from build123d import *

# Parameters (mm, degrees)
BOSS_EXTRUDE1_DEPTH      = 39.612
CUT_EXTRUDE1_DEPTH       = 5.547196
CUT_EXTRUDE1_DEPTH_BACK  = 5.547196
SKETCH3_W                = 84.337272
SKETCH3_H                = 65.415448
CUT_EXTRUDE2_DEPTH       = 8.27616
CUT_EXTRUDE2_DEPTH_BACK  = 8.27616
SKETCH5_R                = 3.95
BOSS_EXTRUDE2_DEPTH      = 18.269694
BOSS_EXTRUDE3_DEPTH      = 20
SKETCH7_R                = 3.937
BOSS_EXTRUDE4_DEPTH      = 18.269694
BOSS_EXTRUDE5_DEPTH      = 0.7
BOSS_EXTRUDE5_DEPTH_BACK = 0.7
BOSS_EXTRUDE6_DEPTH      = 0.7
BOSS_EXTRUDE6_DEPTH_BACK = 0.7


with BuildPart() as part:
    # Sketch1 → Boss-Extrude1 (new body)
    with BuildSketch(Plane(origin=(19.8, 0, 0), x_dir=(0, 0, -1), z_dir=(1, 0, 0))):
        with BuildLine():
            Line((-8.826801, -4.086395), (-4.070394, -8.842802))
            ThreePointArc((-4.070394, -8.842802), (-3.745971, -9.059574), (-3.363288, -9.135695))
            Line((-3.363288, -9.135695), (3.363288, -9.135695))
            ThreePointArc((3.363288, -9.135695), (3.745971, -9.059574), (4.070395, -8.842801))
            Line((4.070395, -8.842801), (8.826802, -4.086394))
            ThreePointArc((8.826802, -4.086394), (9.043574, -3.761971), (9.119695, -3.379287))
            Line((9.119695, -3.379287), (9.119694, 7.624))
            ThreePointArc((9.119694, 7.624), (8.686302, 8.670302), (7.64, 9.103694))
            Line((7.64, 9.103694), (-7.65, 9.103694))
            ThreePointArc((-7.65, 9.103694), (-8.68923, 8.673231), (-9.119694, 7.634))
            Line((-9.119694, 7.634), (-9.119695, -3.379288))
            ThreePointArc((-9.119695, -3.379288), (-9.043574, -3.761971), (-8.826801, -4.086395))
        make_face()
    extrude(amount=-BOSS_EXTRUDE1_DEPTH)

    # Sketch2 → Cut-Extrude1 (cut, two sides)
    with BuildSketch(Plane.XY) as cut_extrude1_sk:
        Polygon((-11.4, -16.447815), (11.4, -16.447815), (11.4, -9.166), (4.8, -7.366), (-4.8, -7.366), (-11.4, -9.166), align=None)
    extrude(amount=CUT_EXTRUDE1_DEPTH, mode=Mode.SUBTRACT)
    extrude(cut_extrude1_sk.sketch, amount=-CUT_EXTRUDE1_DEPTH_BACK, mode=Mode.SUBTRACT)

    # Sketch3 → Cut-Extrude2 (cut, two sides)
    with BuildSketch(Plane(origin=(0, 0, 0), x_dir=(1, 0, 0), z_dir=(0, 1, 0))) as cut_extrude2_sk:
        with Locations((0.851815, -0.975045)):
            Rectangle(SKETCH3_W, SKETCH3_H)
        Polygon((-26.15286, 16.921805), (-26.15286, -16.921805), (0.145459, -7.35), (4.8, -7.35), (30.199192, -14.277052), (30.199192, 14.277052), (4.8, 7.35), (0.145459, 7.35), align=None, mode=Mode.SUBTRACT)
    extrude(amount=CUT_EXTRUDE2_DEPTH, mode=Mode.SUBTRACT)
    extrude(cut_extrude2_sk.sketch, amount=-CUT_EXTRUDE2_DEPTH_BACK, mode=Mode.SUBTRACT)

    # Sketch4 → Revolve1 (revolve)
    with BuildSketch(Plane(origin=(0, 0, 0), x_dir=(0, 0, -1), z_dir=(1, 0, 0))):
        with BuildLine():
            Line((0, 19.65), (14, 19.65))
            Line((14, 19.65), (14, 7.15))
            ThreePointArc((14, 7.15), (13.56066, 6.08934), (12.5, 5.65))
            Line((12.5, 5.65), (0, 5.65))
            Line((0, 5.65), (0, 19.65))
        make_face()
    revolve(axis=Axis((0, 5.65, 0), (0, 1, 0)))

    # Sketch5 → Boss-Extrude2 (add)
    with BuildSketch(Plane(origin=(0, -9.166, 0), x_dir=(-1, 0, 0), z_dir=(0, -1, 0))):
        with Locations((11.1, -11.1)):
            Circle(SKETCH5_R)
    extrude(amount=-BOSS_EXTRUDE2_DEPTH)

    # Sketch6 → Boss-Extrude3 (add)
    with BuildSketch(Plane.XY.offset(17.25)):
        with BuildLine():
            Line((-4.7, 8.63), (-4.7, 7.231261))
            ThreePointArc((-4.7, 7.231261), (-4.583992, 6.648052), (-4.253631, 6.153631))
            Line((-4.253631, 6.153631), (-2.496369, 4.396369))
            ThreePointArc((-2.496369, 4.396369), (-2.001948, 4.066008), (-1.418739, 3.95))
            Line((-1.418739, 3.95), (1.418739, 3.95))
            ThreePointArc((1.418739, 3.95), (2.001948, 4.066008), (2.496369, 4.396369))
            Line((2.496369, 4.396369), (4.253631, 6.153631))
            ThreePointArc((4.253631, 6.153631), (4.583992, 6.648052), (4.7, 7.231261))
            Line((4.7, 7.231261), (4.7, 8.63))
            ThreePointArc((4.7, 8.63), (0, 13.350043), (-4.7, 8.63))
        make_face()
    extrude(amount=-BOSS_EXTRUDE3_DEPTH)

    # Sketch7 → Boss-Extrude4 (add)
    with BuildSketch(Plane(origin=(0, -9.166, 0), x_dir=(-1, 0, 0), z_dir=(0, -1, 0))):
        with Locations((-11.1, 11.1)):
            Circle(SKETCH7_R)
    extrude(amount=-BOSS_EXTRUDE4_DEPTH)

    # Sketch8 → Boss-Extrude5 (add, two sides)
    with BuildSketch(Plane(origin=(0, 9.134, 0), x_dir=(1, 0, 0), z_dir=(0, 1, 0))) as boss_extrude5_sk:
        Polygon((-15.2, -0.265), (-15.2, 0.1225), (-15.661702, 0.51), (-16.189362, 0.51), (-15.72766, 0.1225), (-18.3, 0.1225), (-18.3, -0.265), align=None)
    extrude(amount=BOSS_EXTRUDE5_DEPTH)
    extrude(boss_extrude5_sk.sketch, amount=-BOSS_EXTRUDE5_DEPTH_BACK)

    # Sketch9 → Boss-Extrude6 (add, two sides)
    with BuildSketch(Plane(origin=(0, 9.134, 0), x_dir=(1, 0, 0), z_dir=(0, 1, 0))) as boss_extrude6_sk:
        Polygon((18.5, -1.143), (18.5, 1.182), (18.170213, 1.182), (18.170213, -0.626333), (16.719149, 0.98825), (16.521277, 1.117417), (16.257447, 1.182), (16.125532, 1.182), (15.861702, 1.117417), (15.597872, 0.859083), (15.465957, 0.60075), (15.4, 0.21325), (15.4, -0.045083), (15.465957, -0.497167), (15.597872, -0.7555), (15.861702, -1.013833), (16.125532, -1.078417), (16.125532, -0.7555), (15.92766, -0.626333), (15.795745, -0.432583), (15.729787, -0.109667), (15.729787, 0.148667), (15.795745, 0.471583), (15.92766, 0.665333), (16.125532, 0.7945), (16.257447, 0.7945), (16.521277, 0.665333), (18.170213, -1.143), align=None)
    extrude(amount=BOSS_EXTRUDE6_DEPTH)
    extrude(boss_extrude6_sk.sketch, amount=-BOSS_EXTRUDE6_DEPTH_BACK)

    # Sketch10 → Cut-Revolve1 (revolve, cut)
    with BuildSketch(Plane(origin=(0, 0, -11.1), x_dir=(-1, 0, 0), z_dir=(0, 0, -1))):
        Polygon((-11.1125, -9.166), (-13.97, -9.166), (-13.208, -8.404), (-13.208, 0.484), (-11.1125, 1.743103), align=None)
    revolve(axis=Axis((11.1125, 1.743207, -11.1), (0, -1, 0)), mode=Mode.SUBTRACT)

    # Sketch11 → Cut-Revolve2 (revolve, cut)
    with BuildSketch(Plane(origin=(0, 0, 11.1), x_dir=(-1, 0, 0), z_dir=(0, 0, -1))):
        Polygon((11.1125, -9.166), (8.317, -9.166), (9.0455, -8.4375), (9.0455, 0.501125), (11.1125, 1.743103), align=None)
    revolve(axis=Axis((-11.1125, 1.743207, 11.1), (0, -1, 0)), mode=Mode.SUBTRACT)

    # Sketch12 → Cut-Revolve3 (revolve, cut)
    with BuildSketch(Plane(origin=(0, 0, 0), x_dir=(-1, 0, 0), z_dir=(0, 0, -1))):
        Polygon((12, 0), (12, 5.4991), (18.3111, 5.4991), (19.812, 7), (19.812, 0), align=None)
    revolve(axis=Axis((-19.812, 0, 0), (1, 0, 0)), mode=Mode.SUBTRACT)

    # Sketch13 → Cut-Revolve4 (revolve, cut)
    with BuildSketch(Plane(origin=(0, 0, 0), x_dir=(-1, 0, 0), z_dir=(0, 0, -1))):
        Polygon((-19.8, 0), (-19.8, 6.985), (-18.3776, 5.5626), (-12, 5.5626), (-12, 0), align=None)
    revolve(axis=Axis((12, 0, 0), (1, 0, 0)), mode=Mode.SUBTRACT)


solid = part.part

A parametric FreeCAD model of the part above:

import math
import FreeCAD as App
import Part
import Sketcher
from FreeCAD import Vector
Q = App.Units.Quantity


def add_polygon(sketch, points):
    """Adds a closed chain of lines whose ends are joined by coincident constraints."""
    first, n = sketch.GeometryCount, len(points)
    for a, b in zip(points, points[1:] + points[:1]):
        sketch.addGeometry(Part.LineSegment(App.Vector(*a, 0), App.Vector(*b, 0)), False)
    for i in range(n):
        sketch.addConstraint(Sketcher.Constraint("Coincident", first + i, 2, first + (i + 1) % n, 1))

doc = App.newDocument("Part")
params = doc.addObject("Spreadsheet::Sheet", "Params")
for row, (alias, value) in enumerate([
    ("sketch1_height", "15.29 mm"),
    ("pad1_length", "39.612 mm"),
    ("sketch2_width", "22.8 mm"),
    ("sketch2_width2", "9.6 mm"),
    ("pocket2_length", "8.27616 mm"),
    ("pocket2_length2", "8.27616 mm"),
    ("sketch4_radius", "1.500001 mm"),
    ("sketch4_width", "14 mm"),
    ("revolution_angle", "360 deg"),
    ("sketch5_diameter", "7.9 mm"),
    ("pad2_length", "18.269694 mm"),
    ("pad3_length", "20 mm"),
    ("pad4_length", "18.269694 mm"),
    ("sketch8_width", "3.1 mm"),
    ("pad5_length", "0.7 mm"),
    ("pad5_length2", "0.7 mm"),
    ("pad6_length", "0.7 mm"),
    ("pad6_length2", "0.7 mm"),
    ("groove_angle", "360 deg"),
    ("groove2_angle", "360 deg"),
    ("sketch12_height", "7 mm"),
    ("groove3_angle", "360 deg"),
    ("sketch13_width", "7.8 mm"),
    ("groove4_angle", "360 deg"),
], start=1):
    params.set(f"A{row}", alias)
    params.set(f"B{row}", "=" + value)
    params.setAlias(f"B{row}", alias)

body = doc.addObject("PartDesign::Body", "Body")

# Sketch on YZ plane
sketch1 = body.newObject("Sketcher::SketchObject", "Sketch")
sketch1.AttachmentSupport = (doc.getObject("YZ_Plane"), [""])
sketch1.MapMode = "FlatFace"
sketch1.AttachmentOffset = App.Placement(Vector(0, 0, 19.8), App.Rotation())
sketch1.addGeometry(Part.LineSegment(Vector(-4.1, 8.8, 0), Vector(-8.8, 4.1, 0)), False)
sketch1.addGeometry(Part.ArcOfCircle(Part.Circle(Vector(-8.1, 3.4, 0), Vector(0, 0, 1), 1), math.radians(135), math.radians(180)), False)
sketch1.addGeometry(Part.LineSegment(Vector(-9.1, 3.4, 0), Vector(-9.1, -3.4, 0)), False)
sketch1.addGeometry(Part.ArcOfCircle(Part.Circle(Vector(-8.1, -3.4, 0), Vector(0, 0, 1), 1), math.radians(-180), math.radians(-135)), False)
sketch1.addGeometry(Part.LineSegment(Vector(-8.8, -4.1, 0), Vector(-4.1, -8.8, 0)), False)
sketch1.addGeometry(Part.ArcOfCircle(Part.Circle(Vector(-3.4, -8.1, 0), Vector(0, 0, 1), 1), math.radians(-135), math.radians(-90)), False)
sketch1.addGeometry(Part.LineSegment(Vector(-3.4, -9.1, 0), Vector(7.6, -9.1, 0)), False)
sketch1.addGeometry(Part.ArcOfCircle(Part.Circle(Vector(7.6, -7.6, 0), Vector(0, 0, 1), 1.5), math.radians(-90), math.radians(0)), False)
sketch1.addGeometry(Part.LineSegment(Vector(9.1, -7.6, 0), Vector(9.1, 7.7, 0)), False)
sketch1.addGeometry(Part.ArcOfCircle(Part.Circle(Vector(7.6, 7.6, 0), Vector(0, 0, 1), 1.5), math.radians(0), math.radians(90)), False)
sketch1.addGeometry(Part.LineSegment(Vector(7.6, 9.1, 0), Vector(-3.4, 9.1, 0)), False)
sketch1.addGeometry(Part.ArcOfCircle(Part.Circle(Vector(-3.4, 8.1, 0), Vector(0, 0, 1), 1), math.radians(90), math.radians(135)), False)
sketch1.addConstraint(Sketcher.Constraint("Coincident", 0, 2, 1, 1))
sketch1.addConstraint(Sketcher.Constraint("Coincident", 1, 2, 2, 1))
sketch1.addConstraint(Sketcher.Constraint("Coincident", 2, 2, 3, 1))
sketch1.addConstraint(Sketcher.Constraint("Tangent", 3, 2, 4, 1))
sketch1.addConstraint(Sketcher.Constraint("Coincident", 4, 2, 5, 1))
sketch1.addConstraint(Sketcher.Constraint("Tangent", 5, 2, 6, 1))
sketch1.addConstraint(Sketcher.Constraint("Tangent", 6, 2, 7, 1))
sketch1.addConstraint(Sketcher.Constraint("Tangent", 7, 2, 8, 1))
sketch1.addConstraint(Sketcher.Constraint("Tangent", 8, 2, 9, 1))
sketch1.addConstraint(Sketcher.Constraint("Tangent", 9, 2, 10, 1))
sketch1.addConstraint(Sketcher.Constraint("Coincident", 10, 2, 11, 1))
sketch1.addConstraint(Sketcher.Constraint("Tangent", 11, 2, 0, 1))
sketch1.addConstraint(Sketcher.Constraint("Vertical", 2))
sketch1.addConstraint(Sketcher.Constraint("Horizontal", 6))
sketch1.addConstraint(Sketcher.Constraint("Vertical", 8))
sketch1.addConstraint(Sketcher.Constraint("Horizontal", 10))
sketch1.addConstraint(Sketcher.Constraint("Equal", 1, 3))
sketch1.addConstraint(Sketcher.Constraint("Equal", 3, 5))
sketch1.addConstraint(Sketcher.Constraint("Equal", 5, 11))
sketch1.addConstraint(Sketcher.Constraint("Symmetric", 5, 3, 11, 3, -1))
sketch1.addConstraint(Sketcher.Constraint("Symmetric", 0, 2, 3, 2, -1))
sketch1.addConstraint(Sketcher.Constraint("Perpendicular", 0, 4))
sketch1.addConstraint(Sketcher.Constraint("Vertical", 5, 2, 10, 2))
sketch1.addConstraint(Sketcher.Constraint("Vertical", 4, 2, 11, 2))
sketch1.addConstraint(Sketcher.Constraint("DistanceY", 8, 1, 8, 2, 15.29))
sketch1.addConstraint(Sketcher.Constraint("DistanceY", 7, 3, -1, 1, 7.640001))
sketch1.addConstraint(Sketcher.Constraint("DistanceX", -1, 1, 7, 3, 7.624001))
sketch1.addConstraint(Sketcher.Constraint("Radius", 1, 1.000005))
sketch1.addConstraint(Sketcher.Constraint("Radius", 7, 1.479693))
sketch1.addConstraint(Sketcher.Constraint("DistanceX", 3, 2, -1, 1, 8.842801))
sketch1.addConstraint(Sketcher.Constraint("DistanceY", 1, 2, 11, 3, 4.756402))
sketch1.addConstraint(Sketcher.Constraint("DistanceY", 5, 3, 2, 2, 4.756402))
sketch1.addConstraint(Sketcher.Constraint("DistanceX", 2, 2, 4, 2, 5.049301))
sketch1.setExpression("Constraints[24]", "Params.sketch1_height")
pad1 = body.newObject("PartDesign::Pad", "Pad")
pad1.Profile = sketch1
pad1.setExpression("Length", "Params.pad1_length")
pad1.Reversed = True

# Sketch on XY plane
sketch2 = body.newObject("Sketcher::SketchObject", "Sketch001")
sketch2.AttachmentSupport = (doc.getObject("XY_Plane"), [""])
sketch2.MapMode = "FlatFace"
add_polygon(sketch2, [(-11, -16), (11, -16), (11, -9), (5, -7), (-5, -7), (-11, -9)])  # lines 0-5
sketch2.addConstraint(Sketcher.Constraint("Horizontal", 0))
sketch2.addConstraint(Sketcher.Constraint("Vertical", 1))
sketch2.addConstraint(Sketcher.Constraint("Horizontal", 3))
sketch2.addConstraint(Sketcher.Constraint("Vertical", 5))
sketch2.addConstraint(Sketcher.Constraint("Symmetric", 1, 2, 4, 2, -2))
sketch2.addConstraint(Sketcher.Constraint("Equal", 2, 4))
sketch2.addConstraint(Sketcher.Constraint("DistanceX", 0, 1, 0, 2, 22.8))
sketch2.addConstraint(Sketcher.Constraint("DistanceX", 3, 2, 3, 1, 9.6))
sketch2.addConstraint(Sketcher.Constraint("DistanceY", 1, 2, 2, 2, 1.8))
sketch2.addConstraint(Sketcher.Constraint("DistanceY", 1, 2, -1, 1, 9.166))
sketch2.addConstraint(Sketcher.Constraint("DistanceY", 1, 1, 1, 2, 7.281815))
sketch2.setExpression("Constraints[12]", "Params.sketch2_width")
sketch2.setExpression("Constraints[13]", "Params.sketch2_width2")
pocket1 = body.newObject("PartDesign::Pocket", "Pocket")
pocket1.Profile = sketch2
pocket1.Type = "ThroughAll"
pocket1.Midplane = True

# Sketch on XZ plane
sketch3 = body.newObject("Sketcher::SketchObject", "Sketch002")
sketch3.AttachmentSupport = (doc.getObject("XZ_Plane"), [""])
sketch3.MapMode = "FlatFace"
add_polygon(sketch3, [(-41.3, -31.7), (-41.3, 33.7), (43, 33.7), (43, -31.7)])  # lines 0-3
add_polygon(sketch3, [(-26.2, 16.9), (-26.2, -16.9), (0.1, -7.3), (4.8, -7.3), (30.2, -14.3), (30.2, 14.3), (4.8, 7.3), (0.1, 7.3)])  # lines 4-11
sketch3.addConstraint(Sketcher.Constraint("Vertical", 0))
sketch3.addConstraint(Sketcher.Constraint("Horizontal", 1))
sketch3.addConstraint(Sketcher.Constraint("Vertical", 2))
sketch3.addConstraint(Sketcher.Constraint("Horizontal", 3))
sketch3.addConstraint(Sketcher.Constraint("Vertical", 4))
sketch3.addConstraint(Sketcher.Constraint("Horizontal", 6))
sketch3.addConstraint(Sketcher.Constraint("Vertical", 8))
sketch3.addConstraint(Sketcher.Constraint("Horizontal", 10))
sketch3.addConstraint(Sketcher.Constraint("Symmetric", 6, 2, 9, 2, -1))
sketch3.addConstraint(Sketcher.Constraint("Vertical", 5, 2, 10, 2))
sketch3.addConstraint(Sketcher.Constraint("Equal", 7, 9))
sketch3.addConstraint(Sketcher.Constraint("Equal", 5, 11))
sketch3.addConstraint(Sketcher.Constraint("Angle", 5, Q("19.999999 deg")))
sketch3.addConstraint(Sketcher.Constraint("DistanceX", -1, 1, 6, 2, 4.8))
sketch3.addConstraint(Sketcher.Constraint("DistanceY", 6, 2, 9, 2, 14.7))
sketch3.addConstraint(Sketcher.Constraint("DistanceX", 1, 1, 1, 2, 84.337272))
sketch3.addConstraint(Sketcher.Constraint("DistanceX", 6, 1, 6, 2, 4.654541))
sketch3.addConstraint(Sketcher.Constraint("DistanceY", 4, 2, 4, 1, 33.84361))
sketch3.addConstraint(Sketcher.Constraint("Distance", 7, 26.326849))
sketch3.addConstraint(Sketcher.Constraint("DistanceY", 0, 1, 0, 2, 65.415448))
sketch3.addConstraint(Sketcher.Constraint("DistanceY", 8, 1, 8, 2, 28.554104))
sketch3.addConstraint(Sketcher.Constraint("DistanceX", 0, 2, -1, 1, 41.316821))
sketch3.addConstraint(Sketcher.Constraint("DistanceY", -1, 1, 0, 2, 33.682769))
pocket2 = body.newObject("PartDesign::Pocket", "Pocket001")
pocket2.Profile = sketch3
pocket2.Type = "TwoLengths"
pocket2.setExpression("Length", "Params.pocket2_length")
pocket2.setExpression("Length2", "Params.pocket2_length2")

# Sketch on YZ plane
sketch4 = body.newObject("Sketcher::SketchObject", "Sketch003")
sketch4.AttachmentSupport = (doc.getObject("YZ_Plane"), [""])
sketch4.MapMode = "FlatFace"
sketch4.addGeometry(Part.LineSegment(Vector(19.6, -14, 0), Vector(19.6, 0, 0)), False)
sketch4.addGeometry(Part.LineSegment(Vector(19.6, 0, 0), Vector(5.7, 0, 0)), False)
sketch4.addGeometry(Part.LineSegment(Vector(5.7, 0, 0), Vector(5.7, -12.5, 0)), False)
sketch4.addGeometry(Part.ArcOfCircle(Part.Circle(Vector(7.2, -12.5, 0), Vector(0, 0, 1), 1.5), math.radians(-180), math.radians(-90)), False)
sketch4.addGeometry(Part.LineSegment(Vector(7.2, -14, 0), Vector(19.6, -14, 0)), False)
sketch4.addConstraint(Sketcher.Constraint("Coincident", 0, 2, 1, 1))
sketch4.addConstraint(Sketcher.Constraint("Coincident", 1, 2, 2, 1))
sketch4.addConstraint(Sketcher.Constraint("Tangent", 2, 2, 3, 1))
sketch4.addConstraint(Sketcher.Constraint("Tangent", 3, 2, 4, 1))
sketch4.addConstraint(Sketcher.Constraint("Coincident", 4, 2, 0, 1))
sketch4.addConstraint(Sketcher.Constraint("Vertical", 0))
sketch4.addConstraint(Sketcher.Constraint("Horizontal", 1))
sketch4.addConstraint(Sketcher.Constraint("Vertical", 2))
sketch4.addConstraint(Sketcher.Constraint("Horizontal", 4))
sketch4.addConstraint(Sketcher.Constraint("PointOnObject", 0, 2, -1))
sketch4.addConstraint(Sketcher.Constraint("Equal", 1, 0))
sketch4.addConstraint(Sketcher.Constraint("Radius", 3, 1.500001))
sketch4.addConstraint(Sketcher.Constraint("DistanceX", 1, 2, 1, 1, 14.0))
sketch4.addConstraint(Sketcher.Constraint("DistanceX", -1, 1, 3, 3, 7.150001))
sketch4.setExpression("Constraints[11]", "Params.sketch4_radius")
sketch4.setExpression("Constraints[12]", "Params.sketch4_width")
revolution = body.newObject("PartDesign::Revolution", "Revolution")
revolution.Profile = sketch4
revolution.ReferenceAxis = (sketch4, ["H_Axis"])
revolution.setExpression("Angle", "Params.revolution_angle")

# Sketch on XZ plane
sketch5 = body.newObject("Sketcher::SketchObject", "Sketch004")
sketch5.AttachmentSupport = (doc.getObject("XZ_Plane"), [""])
sketch5.MapMode = "FlatFace"
sketch5.AttachmentOffset = App.Placement(Vector(0, 0, 9.166), App.Rotation())
sketch5.addGeometry(Part.Circle(Vector(-11.1, 11.1, 0), Vector(0, 0, 1), 4), False)
sketch5.addConstraint(Sketcher.Constraint("Diameter", 0, 7.9))
sketch5.addConstraint(Sketcher.Constraint("DistanceX", 0, 3, -1, 1, 11.1))
sketch5.addConstraint(Sketcher.Constraint("DistanceY", -1, 1, 0, 3, 11.1))
sketch5.setExpression("Constraints[0]", "Params.sketch5_diameter")
pad2 = body.newObject("PartDesign::Pad", "Pad001")
pad2.Profile = sketch5
pad2.setExpression("Length", "Params.pad2_length")
pad2.Reversed = True

# Sketch on XY plane
sketch6 = body.newObject("Sketcher::SketchObject", "Sketch005")
sketch6.AttachmentSupport = (doc.getObject("XY_Plane"), [""])
sketch6.MapMode = "FlatFace"
sketch6.AttachmentOffset = App.Placement(Vector(0, 0, 17.25), App.Rotation())
sketch6.addGeometry(Part.LineSegment(Vector(-4.7, 8.63, 0), Vector(-4.7, 7.231261, 0)), False)
sketch6.addGeometry(Part.ArcOfCircle(Part.Circle(Vector(-3.175995, 7.231264, 0), Vector(0, 0, 1), 1.524005), math.radians(-179.999905), math.radians(-135.000091)), False)
sketch6.addGeometry(Part.LineSegment(Vector(-4.253631, 6.153631, 0), Vector(-2.496369, 4.396369, 0)), False)
sketch6.addGeometry(Part.ArcOfCircle(Part.Circle(Vector(-1.418736, 5.474005, 0), Vector(0, 0, 1), 1.524005), math.radians(-134.999909), math.radians(-90.000095)), False)
sketch6.addGeometry(Part.LineSegment(Vector(-1.418739, 3.95, 0), Vector(1.418739, 3.95, 0)), False)
sketch6.addGeometry(Part.ArcOfCircle(Part.Circle(Vector(1.418736, 5.474005, 0), Vector(0, 0, 1), 1.524005), math.radians(-89.999905), math.radians(-45.000091)), False)
sketch6.addGeometry(Part.LineSegment(Vector(2.496369, 4.396369, 0), Vector(4.253631, 6.153631, 0)), False)
sketch6.addGeometry(Part.ArcOfCircle(Part.Circle(Vector(3.175995, 7.231264, 0), Vector(0, 0, 1), 1.524005), math.radians(-44.999909), math.radians(-0.000095)), False)
sketch6.addGeometry(Part.LineSegment(Vector(4.7, 7.231261, 0), Vector(4.7, 8.63, 0)), False)
sketch6.addGeometry(Part.ArcOfCircle(Part.Circle(Vector(0, 8.65, 0), Vector(0, 0, 1), 4.700043), math.radians(-0.243816), math.radians(180.243816)), False)
sketch6.addConstraint(Sketcher.Constraint("Tangent", 0, 2, 1, 1))
sketch6.addConstraint(Sketcher.Constraint("Tangent", 1, 2, 2, 1))
sketch6.addConstraint(Sketcher.Constraint("Tangent", 2, 2, 3, 1))
sketch6.addConstraint(Sketcher.Constraint("Tangent", 3, 2, 4, 1))
sketch6.addConstraint(Sketcher.Constraint("Tangent", 4, 2, 5, 1))
sketch6.addConstraint(Sketcher.Constraint("Tangent", 5, 2, 6, 1))
sketch6.addConstraint(Sketcher.Constraint("Tangent", 6, 2, 7, 1))
sketch6.addConstraint(Sketcher.Constraint("Tangent", 7, 2, 8, 1))
sketch6.addConstraint(Sketcher.Constraint("Coincident", 8, 2, 9, 1))
sketch6.addConstraint(Sketcher.Constraint("Coincident", 9, 2, 0, 1))
sketch6.addConstraint(Sketcher.Constraint("Vertical", 0))
sketch6.addConstraint(Sketcher.Constraint("Horizontal", 4))
sketch6.addConstraint(Sketcher.Constraint("Vertical", 8))
sketch6.addConstraint(Sketcher.Constraint("Equal", 1, 3))
sketch6.addConstraint(Sketcher.Constraint("Equal", 3, 5))
sketch6.addConstraint(Sketcher.Constraint("Equal", 5, 7))
sketch6.addConstraint(Sketcher.Constraint("Symmetric", 1, 3, 7, 3, -2))
sketch6.addConstraint(Sketcher.Constraint("PointOnObject", 9, 3, -2))
sketch6.addConstraint(Sketcher.Constraint("Perpendicular", 2, 6))
sketch6.addConstraint(Sketcher.Constraint("Horizontal", 2, 2, 5, 2))
sketch6.addConstraint(Sketcher.Constraint("DistanceX", 0, 2, -1, 1, 4.7))
sketch6.addConstraint(Sketcher.Constraint("DistanceY", -1, 1, 9, 3, 8.65))
sketch6.addConstraint(Sketcher.Constraint("DistanceY", -1, 1, 3, 2, 3.95))
sketch6.addConstraint(Sketcher.Constraint("DistanceY", -1, 1, 8, 2, 8.63))
sketch6.addConstraint(Sketcher.Constraint("Radius", 1, 1.524005))
sketch6.addConstraint(Sketcher.Constraint("DistanceX", 4, 1, 4, 2, 2.837478))
pad3 = body.newObject("PartDesign::Pad", "Pad002")
pad3.Profile = sketch6
pad3.setExpression("Length", "Params.pad3_length")
pad3.Reversed = True

# Sketch on XZ plane
sketch7 = body.newObject("Sketcher::SketchObject", "Sketch006")
sketch7.AttachmentSupport = (doc.getObject("XZ_Plane"), [""])
sketch7.MapMode = "FlatFace"
sketch7.AttachmentOffset = App.Placement(Vector(0, 0, 9.166), App.Rotation())
sketch7.addGeometry(Part.Circle(Vector(11.1, -11.1, 0), Vector(0, 0, 1), 3.9), False)
sketch7.addConstraint(Sketcher.Constraint("Diameter", 0, 7.874))
sketch7.addConstraint(Sketcher.Constraint("DistanceX", -1, 1, 0, 3, 11.1))
sketch7.addConstraint(Sketcher.Constraint("DistanceY", 0, 3, -1, 1, 11.1))
pad4 = body.newObject("PartDesign::Pad", "Pad003")
pad4.Profile = sketch7
pad4.setExpression("Length", "Params.pad4_length")
pad4.Reversed = True

# Sketch on XZ plane
sketch8 = body.newObject("Sketcher::SketchObject", "Sketch007")
sketch8.AttachmentSupport = (doc.getObject("XZ_Plane"), [""])
sketch8.MapMode = "FlatFace"
sketch8.AttachmentOffset = App.Placement(Vector(0, 0, -9.134), App.Rotation())
add_polygon(sketch8, [(-15.2, 0.27), (-15.2, -0.12), (-15.66, -0.51), (-16.19, -0.51), (-15.73, -0.12), (-18.3, -0.12), (-18.3, 0.27)])  # lines 0-6
sketch8.addConstraint(Sketcher.Constraint("Vertical", 0))
sketch8.addConstraint(Sketcher.Constraint("Horizontal", 2))
sketch8.addConstraint(Sketcher.Constraint("Horizontal", 4))
sketch8.addConstraint(Sketcher.Constraint("Vertical", 5))
sketch8.addConstraint(Sketcher.Constraint("Horizontal", 6))
sketch8.addConstraint(Sketcher.Constraint("Parallel", 1, 3))
sketch8.addConstraint(Sketcher.Constraint("Horizontal", 0, 2, 3, 2))
sketch8.addConstraint(Sketcher.Constraint("DistanceX", 6, 1, 6, 2, 3.1))
sketch8.addConstraint(Sketcher.Constraint("DistanceX", 0, 2, -1, 1, 15.2))
sketch8.addConstraint(Sketcher.Constraint("DistanceY", 1, 2, -1, 1, 0.51))
sketch8.addConstraint(Sketcher.Constraint("DistanceY", 0, 2, 0, 1, 0.3875))
sketch8.addConstraint(Sketcher.Constraint("DistanceY", -1, 1, 5, 2, 0.265))
sketch8.addConstraint(Sketcher.Constraint("DistanceX", 2, 2, 2, 1, 0.52766))
sketch8.addConstraint(Sketcher.Constraint("DistanceX", 2, 2, 3, 2, 0.461702))
sketch8.setExpression("Constraints[14]", "Params.sketch8_width")
pad5 = body.newObject("PartDesign::Pad", "Pad004")
pad5.Profile = sketch8
pad5.Type = "TwoLengths"
pad5.setExpression("Length", "Params.pad5_length")
pad5.setExpression("Length2", "Params.pad5_length2")
pad5.Reversed = True

# Sketch on XZ plane
sketch9 = body.newObject("Sketcher::SketchObject", "Sketch008")
sketch9.AttachmentSupport = (doc.getObject("XZ_Plane"), [""])
sketch9.MapMode = "FlatFace"
sketch9.AttachmentOffset = App.Placement(Vector(0, 0, -9.134), App.Rotation())
add_polygon(sketch9, [(18.5, 1.14), (18.5, -1.18), (18.17, -1.18), (18.17, 0.63), (16.72, -0.99), (16.52, -1.12), (16.26, -1.18), (16.13, -1.18), (15.86, -1.12), (15.6, -0.86), (15.47, -0.6), (15.4, -0.21), (15.4, 0.05), (15.47, 0.5), (15.6, 0.76), (15.86, 1.01), (16.13, 1.08), (16.13, 0.76), (15.93, 0.63), (15.8, 0.43), (15.73, 0.11), (15.73, -0.15), (15.8, -0.47), (15.93, -0.67), (16.13, -0.79), (16.26, -0.79), (16.52, -0.67), (18.17, 1.14)])  # lines 0-27
sketch9.addConstraint(Sketcher.Constraint("Vertical", 0))
sketch9.addConstraint(Sketcher.Constraint("Horizontal", 1))
sketch9.addConstraint(Sketcher.Constraint("Vertical", 2))
sketch9.addConstraint(Sketcher.Constraint("Horizontal", 6))
sketch9.addConstraint(Sketcher.Constraint("Vertical", 11))
sketch9.addConstraint(Sketcher.Constraint("Vertical", 16))
sketch9.addConstraint(Sketcher.Constraint("Vertical", 20))
sketch9.addConstraint(Sketcher.Constraint("Horizontal", 24))
sketch9.addConstraint(Sketcher.Constraint("Horizontal", 27))
sketch9.addConstraint(Sketcher.Constraint("Parallel", 4, 17))
sketch9.addConstraint(Sketcher.Constraint("Horizontal", 1, 2, 5, 2))
sketch9.addConstraint(Sketcher.Constraint("Horizontal", 4, 2, 7, 2))
sketch9.addConstraint(Sketcher.Constraint("Horizontal", 13, 2, 16, 2))
sketch9.addConstraint(Sketcher.Constraint("Horizontal", 2, 2, 17, 2))
sketch9.addConstraint(Sketcher.Constraint("Horizontal", 22, 2, 25, 2))
sketch9.addConstraint(Sketcher.Constraint("Vertical", 9, 2, 12, 2))
sketch9.addConstraint(Sketcher.Constraint("Vertical", 8, 2, 13, 2))
sketch9.addConstraint(Sketcher.Constraint("Vertical", 7, 2, 14, 2))
sketch9.addConstraint(Sketcher.Constraint("Vertical", 6, 2, 15, 2))
sketch9.addConstraint(Sketcher.Constraint("Vertical", 18, 2, 21, 2))
sketch9.addConstraint(Sketcher.Constraint("Vertical", 17, 2, 22, 2))
sketch9.addConstraint(Sketcher.Constraint("Vertical", 16, 2, 23, 2))
sketch9.addConstraint(Sketcher.Constraint("Vertical", 5, 2, 24, 2))
sketch9.addConstraint(Sketcher.Constraint("Vertical", 4, 2, 25, 2))
sketch9.addConstraint(Sketcher.Constraint("Vertical", 2, 2, 26, 2))
sketch9.addConstraint(Sketcher.Constraint("Equal", 11, 20))
sketch9.addConstraint(Sketcher.Constraint("Equal", 5, 7))
sketch9.addConstraint(Sketcher.Constraint("Equal", 9, 13))
sketch9.addConstraint(Sketcher.Constraint("Equal", 8, 14))
sketch9.addConstraint(Sketcher.Constraint("Equal", 7, 15))
sketch9.addConstraint(Sketcher.Constraint("Equal", 4, 17))
sketch9.addConstraint(Sketcher.Constraint("Equal", 19, 21))
sketch9.addConstraint(Sketcher.Constraint("Equal", 18, 22))
sketch9.addConstraint(Sketcher.Constraint("Equal", 17, 23))
sketch9.addConstraint(Sketcher.Constraint("DistanceX", -1, 1, 0, 2, 18.5))
sketch9.addConstraint(Sketcher.Constraint("DistanceX", -1, 1, 10, 2, 15.4))
sketch9.addConstraint(Sketcher.Constraint("DistanceY", 0, 2, 0, 1, 2.325))
sketch9.addConstraint(Sketcher.Constraint("DistanceY", 0, 2, -1, 1, 1.182))
sketch9.addConstraint(Sketcher.Constraint("Distance", 4, 0.236299))
sketch9.addConstraint(Sketcher.Constraint("DistanceX", -1, 1, 7, 2, 15.861702))
sketch9.addConstraint(Sketcher.Constraint("DistanceY", -1, 1, 13, 2, 0.7555))
sketch9.addConstraint(Sketcher.Constraint("DistanceY", 23, 2, -1, 1, 0.7945))
sketch9.addConstraint(Sketcher.Constraint("DistanceY", 9, 2, 10, 2, 0.3875))
sketch9.addConstraint(Sketcher.Constraint("DistanceY", 7, 2, 11, 2, 1.1625))
sketch9.addConstraint(Sketcher.Constraint("DistanceY", 17, 2, 14, 2, 0.3875))
sketch9.addConstraint(Sketcher.Constraint("DistanceY", 11, 2, 18, 2, 0.3875))
sketch9.addConstraint(Sketcher.Constraint("DistanceY", 19, 2, 12, 2, 0.3875))
sketch9.addConstraint(Sketcher.Constraint("DistanceY", 8, 2, 21, 2, 0.3875))
sketch9.addConstraint(Sketcher.Constraint("Distance", 3, 2.170821))
sketch9.addConstraint(Sketcher.Constraint("Distance", 5, 0.27162))
sketch9.addConstraint(Sketcher.Constraint("Distance", 12, 0.45687))
sketch9.addConstraint(Sketcher.Constraint("DistanceX", 1, 2, 1, 1, 0.329787))
sketch9.addConstraint(Sketcher.Constraint("DistanceX", 6, 2, 6, 1, 0.131915))
sketch9.addConstraint(Sketcher.Constraint("DistanceX", 8, 2, 7, 2, 0.26383))
sketch9.addConstraint(Sketcher.Constraint("DistanceX", 12, 2, 18, 2, 0.329788))
sketch9.addConstraint(Sketcher.Constraint("DistanceX", 19, 2, 18, 2, 0.065958))
pad6 = body.newObject("PartDesign::Pad", "Pad005")
pad6.Profile = sketch9
pad6.Type = "TwoLengths"
pad6.setExpression("Length", "Params.pad6_length")
pad6.setExpression("Length2", "Params.pad6_length2")
pad6.Reversed = True

# Sketch on XY plane
sketch10 = body.newObject("Sketcher::SketchObject", "Sketch009")
sketch10.AttachmentSupport = (doc.getObject("XY_Plane"), [""])
sketch10.MapMode = "FlatFace"
sketch10.AttachmentOffset = App.Placement(Vector(0, 0, -11.1), App.Rotation())
add_polygon(sketch10, [(14, -9.2), (11.1, -9.2), (11.1, 1.7), (13.2, 0.5), (13.2, -8.4)])  # lines 0-4
sketch10.addGeometry(Part.LineSegment(Vector(11.1, 1.7, 0), Vector(11.1, -9.2, 0)), True)  # axis
sketch10.addConstraint(Sketcher.Constraint("Horizontal", 0))
sketch10.addConstraint(Sketcher.Constraint("Vertical", 1))
sketch10.addConstraint(Sketcher.Constraint("Vertical", 3))
sketch10.addConstraint(Sketcher.Constraint("Vertical", 5))
sketch10.addConstraint(Sketcher.Constraint("Coincident", 5, 1, 1, 2))
sketch10.addConstraint(Sketcher.Constraint("Horizontal", 4, 2, 5, 2))
sketch10.addConstraint(Sketcher.Constraint("Angle", 2, Q("-30.999991 deg")))
sketch10.addConstraint(Sketcher.Constraint("Angle", 4, Q("-45 deg")))
sketch10.addConstraint(Sketcher.Constraint("DistanceY", 3, 2, 3, 1, 8.888))
sketch10.addConstraint(Sketcher.Constraint("DistanceX", -1, 1, 4, 2, 13.97))
sketch10.addConstraint(Sketcher.Constraint("DistanceY", 0, 2, 2, 2, 9.65))
sketch10.addConstraint(Sketcher.Constraint("DistanceX", 0, 2, 0, 1, 2.8575))
sketch10.addConstraint(Sketcher.Constraint("DistanceY", 0, 2, -1, 1, 9.166))
groove = body.newObject("PartDesign::Groove", "Groove")
groove.Profile = sketch10
groove.ReferenceAxis = (sketch10, ["Axis0"])
groove.setExpression("Angle", "Params.groove_angle")

# Sketch on XY plane
sketch11 = body.newObject("Sketcher::SketchObject", "Sketch010")
sketch11.AttachmentSupport = (doc.getObject("XY_Plane"), [""])
sketch11.MapMode = "FlatFace"
sketch11.AttachmentOffset = App.Placement(Vector(0, 0, 11.1), App.Rotation())
add_polygon(sketch11, [(-8.3, -9.2), (-11.1, -9.2), (-11.1, 1.7), (-9, 0.5), (-9, -8.4)])  # lines 0-4
sketch11.addGeometry(Part.LineSegment(Vector(-11.1, 1.7, 0), Vector(-11.1, -9.2, 0)), True)  # axis
sketch11.addConstraint(Sketcher.Constraint("Horizontal", 0))
sketch11.addConstraint(Sketcher.Constraint("Vertical", 1))
sketch11.addConstraint(Sketcher.Constraint("Vertical", 3))
sketch11.addConstraint(Sketcher.Constraint("Vertical", 5))
sketch11.addConstraint(Sketcher.Constraint("Coincident", 5, 1, 1, 2))
sketch11.addConstraint(Sketcher.Constraint("Horizontal", 4, 2, 5, 2))
sketch11.addConstraint(Sketcher.Constraint("Angle", 2, Q("-30.999982 deg")))
sketch11.addConstraint(Sketcher.Constraint("Angle", 4, Q("-45 deg")))
sketch11.addConstraint(Sketcher.Constraint("DistanceX", 0, 2, 0, 1, 2.7955))
sketch11.addConstraint(Sketcher.Constraint("DistanceY", 0, 2, -1, 1, 9.166))
sketch11.addConstraint(Sketcher.Constraint("DistanceX", 4, 2, -1, 1, 8.317))
sketch11.addConstraint(Sketcher.Constraint("DistanceX", 1, 2, 2, 2, 2.067))
sketch11.addConstraint(Sketcher.Constraint("DistanceY", 1, 1, 1, 2, 10.909103))
groove2 = body.newObject("PartDesign::Groove", "Groove001")
groove2.Profile = sketch11
groove2.ReferenceAxis = (sketch11, ["Axis0"])
groove2.setExpression("Angle", "Params.groove2_angle")

# Sketch on XY plane
sketch12 = body.newObject("Sketcher::SketchObject", "Sketch011")
sketch12.AttachmentSupport = (doc.getObject("XY_Plane"), [""])
sketch12.MapMode = "FlatFace"
add_polygon(sketch12, [(-12, 5.5), (-12, 0), (-19.8, 0), (-19.8, 7), (-18.3, 5.5)])  # lines 0-4
sketch12.addConstraint(Sketcher.Constraint("Vertical", 0))
sketch12.addConstraint(Sketcher.Constraint("Horizontal", 1))
sketch12.addConstraint(Sketcher.Constraint("Vertical", 2))
sketch12.addConstraint(Sketcher.Constraint("Horizontal", 4))
sketch12.addConstraint(Sketcher.Constraint("PointOnObject", 0, 2, -1))
sketch12.addConstraint(Sketcher.Constraint("DistanceY", 2, 1, 2, 2, 7.0))
sketch12.addConstraint(Sketcher.Constraint("Angle", 3, Q("-45 deg")))
sketch12.addConstraint(Sketcher.Constraint("DistanceX", 0, 2, -1, 1, 12.0))
sketch12.addConstraint(Sketcher.Constraint("DistanceX", 1, 2, 1, 1, 7.812))
sketch12.addConstraint(Sketcher.Constraint("DistanceX", 4, 1, 4, 2, 6.3111))
sketch12.setExpression("Constraints[10]", "Params.sketch12_height")
groove3 = body.newObject("PartDesign::Groove", "Groove002")
groove3.Profile = sketch12
groove3.ReferenceAxis = (sketch12, ["H_Axis"])
groove3.setExpression("Angle", "Params.groove3_angle")

# Sketch on XY plane
sketch13 = body.newObject("Sketcher::SketchObject", "Sketch012")
sketch13.AttachmentSupport = (doc.getObject("XY_Plane"), [""])
sketch13.MapMode = "FlatFace"
add_polygon(sketch13, [(19.8, 7), (19.8, 0), (12, 0), (12, 5.6), (18.4, 5.6)])  # lines 0-4
sketch13.addConstraint(Sketcher.Constraint("Vertical", 0))
sketch13.addConstraint(Sketcher.Constraint("Horizontal", 1))
sketch13.addConstraint(Sketcher.Constraint("Vertical", 2))
sketch13.addConstraint(Sketcher.Constraint("Horizontal", 3))
sketch13.addConstraint(Sketcher.Constraint("PointOnObject", 0, 2, -1))
sketch13.addConstraint(Sketcher.Constraint("Angle", 4, Q("45 deg")))
sketch13.addConstraint(Sketcher.Constraint("DistanceX", 1, 2, 1, 1, 7.8))
sketch13.addConstraint(Sketcher.Constraint("DistanceX", -1, 1, 1, 2, 12.0))
sketch13.addConstraint(Sketcher.Constraint("DistanceY", 0, 2, 0, 1, 6.985))
sketch13.addConstraint(Sketcher.Constraint("DistanceX", 3, 1, 3, 2, 6.3776))
sketch13.setExpression("Constraints[11]", "Params.sketch13_width")
groove4 = body.newObject("PartDesign::Groove", "Groove003")
groove4.Profile = sketch13
groove4.ReferenceAxis = (sketch13, ["H_Axis"])
groove4.setExpression("Angle", "Params.groove4_angle")

doc.recompute()
